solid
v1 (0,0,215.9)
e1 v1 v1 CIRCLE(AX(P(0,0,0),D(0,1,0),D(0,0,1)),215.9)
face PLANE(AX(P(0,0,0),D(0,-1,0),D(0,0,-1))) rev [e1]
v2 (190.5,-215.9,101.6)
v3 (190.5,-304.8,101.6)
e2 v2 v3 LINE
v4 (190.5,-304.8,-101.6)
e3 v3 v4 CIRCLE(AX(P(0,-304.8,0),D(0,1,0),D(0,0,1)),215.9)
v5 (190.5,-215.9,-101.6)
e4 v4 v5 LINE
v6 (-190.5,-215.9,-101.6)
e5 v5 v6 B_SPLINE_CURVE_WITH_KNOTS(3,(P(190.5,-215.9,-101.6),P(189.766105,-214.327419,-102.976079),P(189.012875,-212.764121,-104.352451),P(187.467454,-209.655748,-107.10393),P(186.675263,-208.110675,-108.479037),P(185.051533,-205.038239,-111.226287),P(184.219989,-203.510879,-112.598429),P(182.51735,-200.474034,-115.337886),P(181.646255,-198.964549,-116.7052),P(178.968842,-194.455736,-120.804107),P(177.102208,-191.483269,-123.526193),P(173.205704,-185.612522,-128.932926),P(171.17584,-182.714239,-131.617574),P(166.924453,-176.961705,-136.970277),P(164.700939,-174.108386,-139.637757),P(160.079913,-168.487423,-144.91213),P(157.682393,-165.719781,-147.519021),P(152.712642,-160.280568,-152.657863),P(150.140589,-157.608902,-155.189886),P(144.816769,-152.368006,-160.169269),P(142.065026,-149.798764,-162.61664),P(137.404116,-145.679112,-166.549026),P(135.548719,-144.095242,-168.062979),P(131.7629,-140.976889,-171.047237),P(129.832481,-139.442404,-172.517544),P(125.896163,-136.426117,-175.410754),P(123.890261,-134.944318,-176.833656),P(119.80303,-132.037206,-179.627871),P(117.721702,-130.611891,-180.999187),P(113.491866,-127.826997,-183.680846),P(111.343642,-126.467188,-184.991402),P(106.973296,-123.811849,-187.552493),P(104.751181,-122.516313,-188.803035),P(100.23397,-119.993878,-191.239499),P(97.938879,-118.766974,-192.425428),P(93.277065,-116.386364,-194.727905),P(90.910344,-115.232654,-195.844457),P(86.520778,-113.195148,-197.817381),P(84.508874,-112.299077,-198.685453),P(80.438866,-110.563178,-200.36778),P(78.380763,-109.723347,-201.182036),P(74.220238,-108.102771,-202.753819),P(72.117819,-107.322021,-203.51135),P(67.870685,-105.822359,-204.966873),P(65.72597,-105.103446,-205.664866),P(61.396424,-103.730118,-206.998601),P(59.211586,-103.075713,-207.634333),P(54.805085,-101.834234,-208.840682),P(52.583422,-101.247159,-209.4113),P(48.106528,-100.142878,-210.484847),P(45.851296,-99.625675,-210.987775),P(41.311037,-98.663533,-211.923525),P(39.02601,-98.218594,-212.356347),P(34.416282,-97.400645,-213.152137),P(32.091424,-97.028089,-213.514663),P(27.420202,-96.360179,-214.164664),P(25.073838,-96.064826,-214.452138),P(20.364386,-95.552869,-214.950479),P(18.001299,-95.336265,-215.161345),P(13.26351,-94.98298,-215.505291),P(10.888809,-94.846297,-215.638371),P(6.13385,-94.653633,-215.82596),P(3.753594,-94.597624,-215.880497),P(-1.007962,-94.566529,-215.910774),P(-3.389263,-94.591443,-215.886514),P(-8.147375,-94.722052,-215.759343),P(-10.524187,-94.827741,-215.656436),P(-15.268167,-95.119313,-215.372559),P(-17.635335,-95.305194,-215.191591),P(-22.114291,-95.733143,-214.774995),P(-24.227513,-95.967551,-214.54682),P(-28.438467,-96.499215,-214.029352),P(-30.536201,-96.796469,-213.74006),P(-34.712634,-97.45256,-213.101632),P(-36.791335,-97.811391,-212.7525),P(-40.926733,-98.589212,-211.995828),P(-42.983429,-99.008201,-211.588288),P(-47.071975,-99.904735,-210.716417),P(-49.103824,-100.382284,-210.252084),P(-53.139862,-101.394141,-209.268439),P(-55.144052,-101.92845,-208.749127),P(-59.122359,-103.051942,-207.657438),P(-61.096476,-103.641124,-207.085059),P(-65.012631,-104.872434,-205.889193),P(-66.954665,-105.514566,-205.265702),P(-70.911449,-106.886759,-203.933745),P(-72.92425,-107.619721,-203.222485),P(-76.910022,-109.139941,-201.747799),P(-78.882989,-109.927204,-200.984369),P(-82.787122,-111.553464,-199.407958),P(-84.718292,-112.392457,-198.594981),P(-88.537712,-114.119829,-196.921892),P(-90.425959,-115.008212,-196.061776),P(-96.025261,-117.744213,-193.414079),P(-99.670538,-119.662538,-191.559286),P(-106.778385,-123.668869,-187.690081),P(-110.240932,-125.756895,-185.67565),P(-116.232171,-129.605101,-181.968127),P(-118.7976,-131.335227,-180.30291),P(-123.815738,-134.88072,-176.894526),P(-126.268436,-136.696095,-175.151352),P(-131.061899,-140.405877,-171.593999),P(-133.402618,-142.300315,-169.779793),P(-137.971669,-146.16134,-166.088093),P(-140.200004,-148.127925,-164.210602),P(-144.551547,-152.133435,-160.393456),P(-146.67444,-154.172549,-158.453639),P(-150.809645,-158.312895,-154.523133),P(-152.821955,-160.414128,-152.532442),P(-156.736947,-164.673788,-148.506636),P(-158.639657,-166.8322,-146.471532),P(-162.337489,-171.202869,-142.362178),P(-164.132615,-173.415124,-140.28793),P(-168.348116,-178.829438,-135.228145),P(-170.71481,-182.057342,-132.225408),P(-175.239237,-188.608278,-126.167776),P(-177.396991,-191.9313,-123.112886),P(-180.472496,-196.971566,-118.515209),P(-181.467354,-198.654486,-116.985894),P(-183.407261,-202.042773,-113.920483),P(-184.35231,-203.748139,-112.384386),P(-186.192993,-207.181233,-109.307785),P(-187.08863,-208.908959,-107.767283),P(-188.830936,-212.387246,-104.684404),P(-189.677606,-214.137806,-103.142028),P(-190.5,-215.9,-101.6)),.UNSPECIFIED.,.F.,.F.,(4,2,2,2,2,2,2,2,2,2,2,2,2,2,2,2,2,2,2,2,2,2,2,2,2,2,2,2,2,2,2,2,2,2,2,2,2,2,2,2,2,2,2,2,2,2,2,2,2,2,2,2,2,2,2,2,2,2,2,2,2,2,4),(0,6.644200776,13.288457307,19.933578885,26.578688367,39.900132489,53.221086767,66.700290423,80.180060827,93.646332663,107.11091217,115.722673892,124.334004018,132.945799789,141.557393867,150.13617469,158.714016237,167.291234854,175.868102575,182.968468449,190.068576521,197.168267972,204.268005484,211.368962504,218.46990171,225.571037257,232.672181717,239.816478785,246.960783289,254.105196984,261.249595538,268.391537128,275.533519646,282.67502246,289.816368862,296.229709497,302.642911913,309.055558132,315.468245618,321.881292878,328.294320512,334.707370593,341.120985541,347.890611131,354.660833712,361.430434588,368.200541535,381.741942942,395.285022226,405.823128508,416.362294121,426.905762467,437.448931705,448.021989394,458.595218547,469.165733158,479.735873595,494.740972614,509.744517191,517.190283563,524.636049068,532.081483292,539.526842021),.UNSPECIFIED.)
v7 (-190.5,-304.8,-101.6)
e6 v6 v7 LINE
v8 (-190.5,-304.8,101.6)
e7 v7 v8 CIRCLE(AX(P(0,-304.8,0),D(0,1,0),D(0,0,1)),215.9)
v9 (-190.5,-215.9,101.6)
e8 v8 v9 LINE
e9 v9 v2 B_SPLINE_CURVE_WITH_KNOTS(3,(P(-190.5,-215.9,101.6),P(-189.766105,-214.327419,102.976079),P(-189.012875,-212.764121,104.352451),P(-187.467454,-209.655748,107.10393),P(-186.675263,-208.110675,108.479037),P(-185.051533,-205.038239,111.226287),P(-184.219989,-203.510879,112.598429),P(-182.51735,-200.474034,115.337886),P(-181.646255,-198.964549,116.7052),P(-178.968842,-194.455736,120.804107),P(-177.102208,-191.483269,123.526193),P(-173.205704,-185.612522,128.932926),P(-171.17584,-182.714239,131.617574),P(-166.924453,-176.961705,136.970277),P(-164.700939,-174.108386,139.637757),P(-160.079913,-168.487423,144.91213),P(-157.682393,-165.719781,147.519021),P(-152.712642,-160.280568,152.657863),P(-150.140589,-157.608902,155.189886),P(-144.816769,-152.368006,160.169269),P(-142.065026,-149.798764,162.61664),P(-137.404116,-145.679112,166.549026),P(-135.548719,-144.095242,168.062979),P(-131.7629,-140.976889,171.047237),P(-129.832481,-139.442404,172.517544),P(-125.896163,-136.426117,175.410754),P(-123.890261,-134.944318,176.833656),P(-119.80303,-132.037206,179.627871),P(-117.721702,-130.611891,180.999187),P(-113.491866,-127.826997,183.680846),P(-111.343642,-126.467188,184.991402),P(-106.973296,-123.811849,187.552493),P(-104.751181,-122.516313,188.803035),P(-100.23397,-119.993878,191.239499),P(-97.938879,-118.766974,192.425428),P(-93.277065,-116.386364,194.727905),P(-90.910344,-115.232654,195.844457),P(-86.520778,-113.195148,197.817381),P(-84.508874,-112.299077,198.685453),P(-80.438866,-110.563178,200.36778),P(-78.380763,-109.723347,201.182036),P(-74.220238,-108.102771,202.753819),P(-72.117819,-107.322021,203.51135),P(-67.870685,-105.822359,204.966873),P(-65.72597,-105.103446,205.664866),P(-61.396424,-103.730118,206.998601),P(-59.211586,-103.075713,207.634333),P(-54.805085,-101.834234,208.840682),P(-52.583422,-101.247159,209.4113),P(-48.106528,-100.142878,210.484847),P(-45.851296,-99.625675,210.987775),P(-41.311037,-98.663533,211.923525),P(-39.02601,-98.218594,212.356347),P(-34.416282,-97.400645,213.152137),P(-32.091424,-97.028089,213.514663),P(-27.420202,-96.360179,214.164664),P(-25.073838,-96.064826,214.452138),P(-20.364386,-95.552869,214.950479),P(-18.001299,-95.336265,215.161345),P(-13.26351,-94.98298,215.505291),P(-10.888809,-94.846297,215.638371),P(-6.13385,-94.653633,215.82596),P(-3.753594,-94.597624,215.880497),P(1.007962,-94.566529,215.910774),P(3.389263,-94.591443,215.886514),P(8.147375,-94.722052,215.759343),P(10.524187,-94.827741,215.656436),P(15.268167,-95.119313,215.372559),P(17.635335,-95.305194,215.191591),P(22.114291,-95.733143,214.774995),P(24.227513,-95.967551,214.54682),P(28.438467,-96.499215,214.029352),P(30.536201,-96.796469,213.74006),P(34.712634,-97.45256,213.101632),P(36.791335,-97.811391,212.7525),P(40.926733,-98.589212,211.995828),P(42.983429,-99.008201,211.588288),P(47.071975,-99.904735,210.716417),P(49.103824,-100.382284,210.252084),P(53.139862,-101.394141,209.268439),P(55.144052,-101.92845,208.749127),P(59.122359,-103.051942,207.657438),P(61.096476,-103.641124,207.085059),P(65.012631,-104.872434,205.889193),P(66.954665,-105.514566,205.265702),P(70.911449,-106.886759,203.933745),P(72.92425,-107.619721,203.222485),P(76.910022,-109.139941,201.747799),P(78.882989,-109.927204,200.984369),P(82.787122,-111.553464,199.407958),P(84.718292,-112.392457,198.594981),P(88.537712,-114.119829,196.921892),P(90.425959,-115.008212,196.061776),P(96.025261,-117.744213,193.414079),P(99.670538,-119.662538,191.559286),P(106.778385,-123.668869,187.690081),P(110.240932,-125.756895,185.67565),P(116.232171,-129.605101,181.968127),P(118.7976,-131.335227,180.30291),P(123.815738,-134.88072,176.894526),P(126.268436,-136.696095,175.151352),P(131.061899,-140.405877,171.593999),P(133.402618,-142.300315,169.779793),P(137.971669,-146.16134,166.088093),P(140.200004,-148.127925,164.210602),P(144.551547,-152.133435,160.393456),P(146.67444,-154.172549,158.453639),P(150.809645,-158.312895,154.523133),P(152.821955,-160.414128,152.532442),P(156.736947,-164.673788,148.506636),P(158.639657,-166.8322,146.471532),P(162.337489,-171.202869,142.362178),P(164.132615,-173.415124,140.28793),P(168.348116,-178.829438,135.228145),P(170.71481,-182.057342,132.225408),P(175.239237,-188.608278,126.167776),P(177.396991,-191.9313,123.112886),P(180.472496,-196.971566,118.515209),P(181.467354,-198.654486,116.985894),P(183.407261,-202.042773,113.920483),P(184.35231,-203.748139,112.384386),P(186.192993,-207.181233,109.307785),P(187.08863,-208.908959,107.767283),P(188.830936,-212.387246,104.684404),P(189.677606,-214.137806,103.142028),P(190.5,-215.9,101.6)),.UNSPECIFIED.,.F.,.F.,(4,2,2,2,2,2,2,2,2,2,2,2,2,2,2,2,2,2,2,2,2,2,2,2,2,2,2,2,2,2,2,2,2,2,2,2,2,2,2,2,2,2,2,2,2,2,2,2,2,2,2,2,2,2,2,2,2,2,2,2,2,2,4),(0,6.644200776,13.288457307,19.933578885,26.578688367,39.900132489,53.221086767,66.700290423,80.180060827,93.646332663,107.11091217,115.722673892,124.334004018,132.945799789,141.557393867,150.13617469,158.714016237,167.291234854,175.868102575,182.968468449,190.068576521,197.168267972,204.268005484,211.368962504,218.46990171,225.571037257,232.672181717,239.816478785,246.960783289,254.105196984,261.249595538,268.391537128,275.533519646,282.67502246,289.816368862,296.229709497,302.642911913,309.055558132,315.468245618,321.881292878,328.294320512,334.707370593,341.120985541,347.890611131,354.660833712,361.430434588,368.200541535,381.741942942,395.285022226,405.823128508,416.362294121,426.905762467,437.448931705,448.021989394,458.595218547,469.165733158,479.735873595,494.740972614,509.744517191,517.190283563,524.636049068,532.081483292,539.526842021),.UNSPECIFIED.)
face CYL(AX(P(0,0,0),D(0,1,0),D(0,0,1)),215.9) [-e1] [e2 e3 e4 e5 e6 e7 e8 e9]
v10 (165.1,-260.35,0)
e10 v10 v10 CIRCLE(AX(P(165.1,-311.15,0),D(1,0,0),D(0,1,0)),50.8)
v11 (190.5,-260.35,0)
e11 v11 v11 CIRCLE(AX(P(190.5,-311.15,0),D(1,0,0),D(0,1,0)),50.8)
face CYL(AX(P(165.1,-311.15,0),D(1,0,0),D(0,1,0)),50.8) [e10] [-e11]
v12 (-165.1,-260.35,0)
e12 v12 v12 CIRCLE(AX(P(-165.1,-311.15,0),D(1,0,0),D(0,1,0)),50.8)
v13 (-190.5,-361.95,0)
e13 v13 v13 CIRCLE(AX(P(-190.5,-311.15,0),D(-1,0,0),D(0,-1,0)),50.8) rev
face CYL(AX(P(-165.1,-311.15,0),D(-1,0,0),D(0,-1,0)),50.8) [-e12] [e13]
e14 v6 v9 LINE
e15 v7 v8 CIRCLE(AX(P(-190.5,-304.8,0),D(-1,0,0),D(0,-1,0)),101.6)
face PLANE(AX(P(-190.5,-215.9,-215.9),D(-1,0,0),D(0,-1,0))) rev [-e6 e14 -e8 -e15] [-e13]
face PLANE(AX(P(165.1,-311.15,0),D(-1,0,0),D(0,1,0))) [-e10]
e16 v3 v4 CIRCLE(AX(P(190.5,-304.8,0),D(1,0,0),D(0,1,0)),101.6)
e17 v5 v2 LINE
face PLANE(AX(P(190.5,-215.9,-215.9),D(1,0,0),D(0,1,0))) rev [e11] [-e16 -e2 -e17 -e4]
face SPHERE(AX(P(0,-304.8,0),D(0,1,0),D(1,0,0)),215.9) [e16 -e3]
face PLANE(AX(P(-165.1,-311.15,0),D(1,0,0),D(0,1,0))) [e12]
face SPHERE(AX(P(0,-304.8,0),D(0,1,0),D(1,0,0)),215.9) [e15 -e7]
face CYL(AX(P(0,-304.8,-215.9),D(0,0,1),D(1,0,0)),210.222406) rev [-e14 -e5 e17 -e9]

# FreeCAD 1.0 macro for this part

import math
import FreeCAD as App
import Part
import Sketcher
from FreeCAD import Vector
Q = App.Units.Quantity

doc = App.newDocument("Part")
body = doc.addObject("PartDesign::Body", "Body")

sketch1 = body.newObject("Sketcher::SketchObject", "Sketch")
sketch1.AttachmentSupport = (doc.getObject("XY_Plane"), [""])
sketch1.MapMode = "FlatFace"
sketch1.addGeometry([
    Part.LineSegment(Vector(216, 0, 0), Vector(0, 0, 0)),
    Part.LineSegment(Vector(0, 0, 0), Vector(0, -521, 0)),
    Part.ArcOfCircle(Part.Circle(Vector(0, -305, 0), Vector(0, 0, 1), 216), math.radians(-90), math.radians(0)),
    Part.LineSegment(Vector(216, -305, 0), Vector(216, 0, 0)),
], False)
sketch1.addConstraint([
    Sketcher.Constraint("Coincident", 0, 2, 1, 1),
    Sketcher.Constraint("Coincident", 1, 2, 2, 1),
    Sketcher.Constraint("Tangent", 2, 2, 3, 1),
    Sketcher.Constraint("Coincident", 3, 2, 0, 1),
    Sketcher.Constraint("Horizontal", 0),
    Sketcher.Constraint("Vertical", 1),
    Sketcher.Constraint("Vertical", 3),
    Sketcher.Constraint("Coincident", 0, 2, -1, 1),
    Sketcher.Constraint("PointOnObject", 2, 3, -2),
    Sketcher.Constraint("Radius", 2, Q("8.5 in")),
    Sketcher.Constraint("DistanceY", 3, 1, 3, 2, Q("12 in")),
])
revolution = body.newObject("PartDesign::Revolution", "Revolution")
revolution.Profile = sketch1
revolution.ReferenceAxis = (sketch1, ["V_Axis"])
revolution.Angle = 360

sketch2 = body.newObject("Sketcher::SketchObject", "Sketch001")
sketch2.AttachmentSupport = (doc.getObject("XY_Plane"), [""])
sketch2.MapMode = "FlatFace"
sketch2.addGeometry([
    Part.LineSegment(Vector(190, -546, 0), Vector(190, -216, 0)),
    Part.ArcOfCircle(Part.Circle(Vector(0, -305, 0), Vector(0, 0, 1), 210), math.radians(25), math.radians(155)),
    Part.LineSegment(Vector(-190, -216, 0), Vector(-190, -546, 0)),
    Part.LineSegment(Vector(-190, -546, 0), Vector(190, -546, 0)),
], False)
sketch2.addConstraint([
    Sketcher.Constraint("Coincident", 0, 2, 1, 1),
    Sketcher.Constraint("Coincident", 1, 2, 2, 1),
    Sketcher.Constraint("Coincident", 2, 2, 3, 1),
    Sketcher.Constraint("Coincident", 3, 2, 0, 1),
    Sketcher.Constraint("Vertical", 0),
    Sketcher.Constraint("Vertical", 2),
    Sketcher.Constraint("Horizontal", 3),
    Sketcher.Constraint("Symmetric", 0, 2, 1, 2, -2),
    Sketcher.Constraint("DistanceX", 3, 1, 3, 2, Q("15 in")),
    Sketcher.Constraint("DistanceY", 0, 1, 0, 2, Q("13 in")),
    Sketcher.Constraint("DistanceY", 1, 3, -1, 1, Q("12 in")),
    Sketcher.Constraint("DistanceY", 0, 2, -1, 1, Q("8.5 in")),
])
pocket1 = body.newObject("PartDesign::Pocket", "Pocket")
pocket1.Profile = sketch2
pocket1.Type = "ThroughAll"
pocket1.Midplane = True

sketch3 = body.newObject("Sketcher::SketchObject", "Sketch002")
sketch3.AttachmentSupport = (doc.getObject("YZ_Plane"), [""])
sketch3.MapMode = "FlatFace"
sketch3.AttachmentOffset = App.Placement(Vector(0, 0, -7.5 * 25.4), App.Rotation())
sketch3.addGeometry(Part.Circle(Vector(-311, 0, 0), Vector(0, 0, 1), 51), False)
sketch3.addConstraint([
    Sketcher.Constraint("PointOnObject", 0, 3, -1),
    Sketcher.Constraint("Diameter", 0, Q("4 in")),
    Sketcher.Constraint("DistanceX", 0, 3, -1, 1, Q("12.25 in")),
])
pad1 = body.newObject("PartDesign::Pad", "Pad")
pad1.Profile = sketch3
pad1.Length = Q("1 in")
doc.recompute()

mirrored = body.newObject("PartDesign::Mirrored", "Mirrored")
mirrored.Originals = [pad1]
mirrored.MirrorPlane = (doc.getObject("YZ_Plane"), [""])
body.Tip = mirrored

doc.recompute()
